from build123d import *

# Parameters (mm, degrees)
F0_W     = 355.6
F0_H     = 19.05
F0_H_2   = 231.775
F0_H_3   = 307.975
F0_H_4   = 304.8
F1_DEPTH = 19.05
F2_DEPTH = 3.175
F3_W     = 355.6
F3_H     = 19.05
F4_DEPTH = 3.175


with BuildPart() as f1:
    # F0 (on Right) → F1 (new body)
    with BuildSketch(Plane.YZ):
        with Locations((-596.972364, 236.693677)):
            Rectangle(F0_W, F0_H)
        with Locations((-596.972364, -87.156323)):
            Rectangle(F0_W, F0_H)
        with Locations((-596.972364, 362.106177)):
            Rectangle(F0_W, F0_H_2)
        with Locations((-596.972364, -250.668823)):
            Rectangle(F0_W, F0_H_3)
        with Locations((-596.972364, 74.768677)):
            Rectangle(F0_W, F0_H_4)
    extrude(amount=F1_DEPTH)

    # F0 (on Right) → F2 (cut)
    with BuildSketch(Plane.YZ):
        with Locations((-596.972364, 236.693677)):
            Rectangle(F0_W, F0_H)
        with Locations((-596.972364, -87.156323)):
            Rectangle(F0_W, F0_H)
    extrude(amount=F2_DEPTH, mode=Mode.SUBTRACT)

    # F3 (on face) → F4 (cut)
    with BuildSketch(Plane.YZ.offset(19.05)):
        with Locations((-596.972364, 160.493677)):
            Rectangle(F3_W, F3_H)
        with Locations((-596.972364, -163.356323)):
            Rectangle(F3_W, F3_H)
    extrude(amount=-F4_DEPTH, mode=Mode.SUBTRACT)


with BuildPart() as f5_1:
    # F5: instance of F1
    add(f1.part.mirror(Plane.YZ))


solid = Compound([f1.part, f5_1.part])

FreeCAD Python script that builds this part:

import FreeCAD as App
import Part
import Sketcher
Q = App.Units.Quantity


def add_polygon(sketch, points):
    """Adds a closed chain of lines whose ends are joined by coincident constraints."""
    first, n = sketch.GeometryCount, len(points)
    for a, b in zip(points, points[1:] + points[:1]):
        sketch.addGeometry(Part.LineSegment(App.Vector(*a, 0), App.Vector(*b, 0)), False)
    for i in range(n):
        sketch.addConstraint(Sketcher.Constraint("Coincident", first + i, 2, first + (i + 1) % n, 1))

doc = App.newDocument("Part")
body = doc.addObject("PartDesign::Body", "Body")

sketch1 = doc.addObject("Sketcher::SketchObject", "Sketch")
body.addObject(sketch1)
sketch1.AttachmentSupport = (doc.YZ_Plane, [""])
sketch1.MapMode = "FlatFace"
add_polygon(sketch1, [(-419, 478), (-775, 478), (-775, -405), (-419, -405)])
sketch1.addConstraint([
    Sketcher.Constraint("Horizontal", 0),
    Sketcher.Constraint("Vertical", 1),
    Sketcher.Constraint("Horizontal", 2),
    Sketcher.Constraint("Vertical", 3),
    Sketcher.Constraint("DistanceX", 0, 2, 0, 1, Q("14 in")),
    Sketcher.Constraint("DistanceY", 1, 2, 1, 1, Q("34.75 in")),
    Sketcher.Constraint("DistanceX", 0, 2, -1, 1, Q("774.772364 mm")),
    Sketcher.Constraint("DistanceY", -1, 1, 0, 2, Q("477.993677 mm")),
])
pad1 = doc.addObject("PartDesign::Pad", "Pad")
body.addObject(pad1)
pad1.Profile = sketch1
pad1.Length = Q("0.75 in")

sketch2 = doc.addObject("Sketcher::SketchObject", "Sketch001")
body.addObject(sketch2)
sketch2.AttachmentSupport = (doc.YZ_Plane, [""])
sketch2.MapMode = "FlatFace"
add_polygon(sketch2, [(-775, 246), (-775, 227), (-419, 227), (-419, 246)])
add_polygon(sketch2, [(-775, -78), (-775, -97), (-419, -97), (-419, -78)])
sketch2.addConstraint([
    Sketcher.Constraint("Vertical", 0),
    Sketcher.Constraint("Horizontal", 1),
    Sketcher.Constraint("Vertical", 2),
    Sketcher.Constraint("Horizontal", 3),
    Sketcher.Constraint("Vertical", 4),
    Sketcher.Constraint("Horizontal", 5),
    Sketcher.Constraint("Vertical", 6),
    Sketcher.Constraint("Horizontal", 7),
    Sketcher.Constraint("Vertical", 3, 2, 4, 2),
    Sketcher.Constraint("Vertical", 2, 2, 5, 2),
    Sketcher.Constraint("Equal", 2, 4),
    Sketcher.Constraint("DistanceX", 1, 1, 1, 2, Q("14 in")),
    Sketcher.Constraint("DistanceY", 6, 2, 1, 2, Q("12 in")),
    Sketcher.Constraint("DistanceY", 0, 2, 0, 1, Q("0.75 in")),
    Sketcher.Constraint("DistanceX", 0, 2, -1, 1, Q("774.772364 mm")),
    Sketcher.Constraint("DistanceY", -1, 1, 0, 2, Q("227.168677 mm")),
])
pocket1 = doc.addObject("PartDesign::Pocket", "Pocket")
body.addObject(pocket1)
pocket1.Profile = sketch2
pocket1.Length = Q("0.125 in")
pocket1.Reversed = True

sketch3 = doc.addObject("Sketcher::SketchObject", "Sketch002")
body.addObject(sketch3)
sketch3.AttachmentSupport = (doc.YZ_Plane, [""])
sketch3.MapMode = "FlatFace"
sketch3.AttachmentOffset = App.Placement(App.Vector(0, 0, 0.75 * 25.4), App.Rotation())
add_polygon(sketch3, [(-775, 170), (-775, 151), (-419, 151), (-419, 170)])
add_polygon(sketch3, [(-775, -154), (-775, -173), (-419, -173), (-419, -154)])
sketch3.addConstraint([
    Sketcher.Constraint("Vertical", 0),
    Sketcher.Constraint("Horizontal", 1),
    Sketcher.Constraint("Vertical", 2),
    Sketcher.Constraint("Horizontal", 3),
    Sketcher.Constraint("Vertical", 4),
    Sketcher.Constraint("Horizontal", 5),
    Sketcher.Constraint("Vertical", 6),
    Sketcher.Constraint("Horizontal", 7),
    Sketcher.Constraint("Vertical", 3, 2, 4, 2),
    Sketcher.Constraint("Vertical", 2, 2, 5, 2),
    Sketcher.Constraint("Equal", 2, 4),
    Sketcher.Constraint("DistanceX", 1, 1, 1, 2, Q("14 in")),
    Sketcher.Constraint("DistanceY", 6, 2, 1, 2, Q("12 in")),
    Sketcher.Constraint("DistanceY", 0, 2, 0, 1, Q("0.75 in")),
    Sketcher.Constraint("DistanceX", 0, 2, -1, 1, Q("774.772364 mm")),
    Sketcher.Constraint("DistanceY", -1, 1, 0, 2, Q("150.968677 mm")),
])
pocket2 = doc.addObject("PartDesign::Pocket", "Pocket001")
body.addObject(pocket2)
pocket2.Profile = sketch3
pocket2.Length = Q("0.125 in")
body2 = doc.addObject("PartDesign::Body", "Body001")
doc.recompute()

mirroring = doc.addObject("Part::Mirroring", "Mirroring")
mirroring.Source = body
mirroring.Base = App.Vector(0, 0, 0)
mirroring.Normal = App.Vector(1, 0, 0)
body2.BaseFeature = mirroring
doc.recompute()
mirroring.Visibility = False

doc.recompute()
